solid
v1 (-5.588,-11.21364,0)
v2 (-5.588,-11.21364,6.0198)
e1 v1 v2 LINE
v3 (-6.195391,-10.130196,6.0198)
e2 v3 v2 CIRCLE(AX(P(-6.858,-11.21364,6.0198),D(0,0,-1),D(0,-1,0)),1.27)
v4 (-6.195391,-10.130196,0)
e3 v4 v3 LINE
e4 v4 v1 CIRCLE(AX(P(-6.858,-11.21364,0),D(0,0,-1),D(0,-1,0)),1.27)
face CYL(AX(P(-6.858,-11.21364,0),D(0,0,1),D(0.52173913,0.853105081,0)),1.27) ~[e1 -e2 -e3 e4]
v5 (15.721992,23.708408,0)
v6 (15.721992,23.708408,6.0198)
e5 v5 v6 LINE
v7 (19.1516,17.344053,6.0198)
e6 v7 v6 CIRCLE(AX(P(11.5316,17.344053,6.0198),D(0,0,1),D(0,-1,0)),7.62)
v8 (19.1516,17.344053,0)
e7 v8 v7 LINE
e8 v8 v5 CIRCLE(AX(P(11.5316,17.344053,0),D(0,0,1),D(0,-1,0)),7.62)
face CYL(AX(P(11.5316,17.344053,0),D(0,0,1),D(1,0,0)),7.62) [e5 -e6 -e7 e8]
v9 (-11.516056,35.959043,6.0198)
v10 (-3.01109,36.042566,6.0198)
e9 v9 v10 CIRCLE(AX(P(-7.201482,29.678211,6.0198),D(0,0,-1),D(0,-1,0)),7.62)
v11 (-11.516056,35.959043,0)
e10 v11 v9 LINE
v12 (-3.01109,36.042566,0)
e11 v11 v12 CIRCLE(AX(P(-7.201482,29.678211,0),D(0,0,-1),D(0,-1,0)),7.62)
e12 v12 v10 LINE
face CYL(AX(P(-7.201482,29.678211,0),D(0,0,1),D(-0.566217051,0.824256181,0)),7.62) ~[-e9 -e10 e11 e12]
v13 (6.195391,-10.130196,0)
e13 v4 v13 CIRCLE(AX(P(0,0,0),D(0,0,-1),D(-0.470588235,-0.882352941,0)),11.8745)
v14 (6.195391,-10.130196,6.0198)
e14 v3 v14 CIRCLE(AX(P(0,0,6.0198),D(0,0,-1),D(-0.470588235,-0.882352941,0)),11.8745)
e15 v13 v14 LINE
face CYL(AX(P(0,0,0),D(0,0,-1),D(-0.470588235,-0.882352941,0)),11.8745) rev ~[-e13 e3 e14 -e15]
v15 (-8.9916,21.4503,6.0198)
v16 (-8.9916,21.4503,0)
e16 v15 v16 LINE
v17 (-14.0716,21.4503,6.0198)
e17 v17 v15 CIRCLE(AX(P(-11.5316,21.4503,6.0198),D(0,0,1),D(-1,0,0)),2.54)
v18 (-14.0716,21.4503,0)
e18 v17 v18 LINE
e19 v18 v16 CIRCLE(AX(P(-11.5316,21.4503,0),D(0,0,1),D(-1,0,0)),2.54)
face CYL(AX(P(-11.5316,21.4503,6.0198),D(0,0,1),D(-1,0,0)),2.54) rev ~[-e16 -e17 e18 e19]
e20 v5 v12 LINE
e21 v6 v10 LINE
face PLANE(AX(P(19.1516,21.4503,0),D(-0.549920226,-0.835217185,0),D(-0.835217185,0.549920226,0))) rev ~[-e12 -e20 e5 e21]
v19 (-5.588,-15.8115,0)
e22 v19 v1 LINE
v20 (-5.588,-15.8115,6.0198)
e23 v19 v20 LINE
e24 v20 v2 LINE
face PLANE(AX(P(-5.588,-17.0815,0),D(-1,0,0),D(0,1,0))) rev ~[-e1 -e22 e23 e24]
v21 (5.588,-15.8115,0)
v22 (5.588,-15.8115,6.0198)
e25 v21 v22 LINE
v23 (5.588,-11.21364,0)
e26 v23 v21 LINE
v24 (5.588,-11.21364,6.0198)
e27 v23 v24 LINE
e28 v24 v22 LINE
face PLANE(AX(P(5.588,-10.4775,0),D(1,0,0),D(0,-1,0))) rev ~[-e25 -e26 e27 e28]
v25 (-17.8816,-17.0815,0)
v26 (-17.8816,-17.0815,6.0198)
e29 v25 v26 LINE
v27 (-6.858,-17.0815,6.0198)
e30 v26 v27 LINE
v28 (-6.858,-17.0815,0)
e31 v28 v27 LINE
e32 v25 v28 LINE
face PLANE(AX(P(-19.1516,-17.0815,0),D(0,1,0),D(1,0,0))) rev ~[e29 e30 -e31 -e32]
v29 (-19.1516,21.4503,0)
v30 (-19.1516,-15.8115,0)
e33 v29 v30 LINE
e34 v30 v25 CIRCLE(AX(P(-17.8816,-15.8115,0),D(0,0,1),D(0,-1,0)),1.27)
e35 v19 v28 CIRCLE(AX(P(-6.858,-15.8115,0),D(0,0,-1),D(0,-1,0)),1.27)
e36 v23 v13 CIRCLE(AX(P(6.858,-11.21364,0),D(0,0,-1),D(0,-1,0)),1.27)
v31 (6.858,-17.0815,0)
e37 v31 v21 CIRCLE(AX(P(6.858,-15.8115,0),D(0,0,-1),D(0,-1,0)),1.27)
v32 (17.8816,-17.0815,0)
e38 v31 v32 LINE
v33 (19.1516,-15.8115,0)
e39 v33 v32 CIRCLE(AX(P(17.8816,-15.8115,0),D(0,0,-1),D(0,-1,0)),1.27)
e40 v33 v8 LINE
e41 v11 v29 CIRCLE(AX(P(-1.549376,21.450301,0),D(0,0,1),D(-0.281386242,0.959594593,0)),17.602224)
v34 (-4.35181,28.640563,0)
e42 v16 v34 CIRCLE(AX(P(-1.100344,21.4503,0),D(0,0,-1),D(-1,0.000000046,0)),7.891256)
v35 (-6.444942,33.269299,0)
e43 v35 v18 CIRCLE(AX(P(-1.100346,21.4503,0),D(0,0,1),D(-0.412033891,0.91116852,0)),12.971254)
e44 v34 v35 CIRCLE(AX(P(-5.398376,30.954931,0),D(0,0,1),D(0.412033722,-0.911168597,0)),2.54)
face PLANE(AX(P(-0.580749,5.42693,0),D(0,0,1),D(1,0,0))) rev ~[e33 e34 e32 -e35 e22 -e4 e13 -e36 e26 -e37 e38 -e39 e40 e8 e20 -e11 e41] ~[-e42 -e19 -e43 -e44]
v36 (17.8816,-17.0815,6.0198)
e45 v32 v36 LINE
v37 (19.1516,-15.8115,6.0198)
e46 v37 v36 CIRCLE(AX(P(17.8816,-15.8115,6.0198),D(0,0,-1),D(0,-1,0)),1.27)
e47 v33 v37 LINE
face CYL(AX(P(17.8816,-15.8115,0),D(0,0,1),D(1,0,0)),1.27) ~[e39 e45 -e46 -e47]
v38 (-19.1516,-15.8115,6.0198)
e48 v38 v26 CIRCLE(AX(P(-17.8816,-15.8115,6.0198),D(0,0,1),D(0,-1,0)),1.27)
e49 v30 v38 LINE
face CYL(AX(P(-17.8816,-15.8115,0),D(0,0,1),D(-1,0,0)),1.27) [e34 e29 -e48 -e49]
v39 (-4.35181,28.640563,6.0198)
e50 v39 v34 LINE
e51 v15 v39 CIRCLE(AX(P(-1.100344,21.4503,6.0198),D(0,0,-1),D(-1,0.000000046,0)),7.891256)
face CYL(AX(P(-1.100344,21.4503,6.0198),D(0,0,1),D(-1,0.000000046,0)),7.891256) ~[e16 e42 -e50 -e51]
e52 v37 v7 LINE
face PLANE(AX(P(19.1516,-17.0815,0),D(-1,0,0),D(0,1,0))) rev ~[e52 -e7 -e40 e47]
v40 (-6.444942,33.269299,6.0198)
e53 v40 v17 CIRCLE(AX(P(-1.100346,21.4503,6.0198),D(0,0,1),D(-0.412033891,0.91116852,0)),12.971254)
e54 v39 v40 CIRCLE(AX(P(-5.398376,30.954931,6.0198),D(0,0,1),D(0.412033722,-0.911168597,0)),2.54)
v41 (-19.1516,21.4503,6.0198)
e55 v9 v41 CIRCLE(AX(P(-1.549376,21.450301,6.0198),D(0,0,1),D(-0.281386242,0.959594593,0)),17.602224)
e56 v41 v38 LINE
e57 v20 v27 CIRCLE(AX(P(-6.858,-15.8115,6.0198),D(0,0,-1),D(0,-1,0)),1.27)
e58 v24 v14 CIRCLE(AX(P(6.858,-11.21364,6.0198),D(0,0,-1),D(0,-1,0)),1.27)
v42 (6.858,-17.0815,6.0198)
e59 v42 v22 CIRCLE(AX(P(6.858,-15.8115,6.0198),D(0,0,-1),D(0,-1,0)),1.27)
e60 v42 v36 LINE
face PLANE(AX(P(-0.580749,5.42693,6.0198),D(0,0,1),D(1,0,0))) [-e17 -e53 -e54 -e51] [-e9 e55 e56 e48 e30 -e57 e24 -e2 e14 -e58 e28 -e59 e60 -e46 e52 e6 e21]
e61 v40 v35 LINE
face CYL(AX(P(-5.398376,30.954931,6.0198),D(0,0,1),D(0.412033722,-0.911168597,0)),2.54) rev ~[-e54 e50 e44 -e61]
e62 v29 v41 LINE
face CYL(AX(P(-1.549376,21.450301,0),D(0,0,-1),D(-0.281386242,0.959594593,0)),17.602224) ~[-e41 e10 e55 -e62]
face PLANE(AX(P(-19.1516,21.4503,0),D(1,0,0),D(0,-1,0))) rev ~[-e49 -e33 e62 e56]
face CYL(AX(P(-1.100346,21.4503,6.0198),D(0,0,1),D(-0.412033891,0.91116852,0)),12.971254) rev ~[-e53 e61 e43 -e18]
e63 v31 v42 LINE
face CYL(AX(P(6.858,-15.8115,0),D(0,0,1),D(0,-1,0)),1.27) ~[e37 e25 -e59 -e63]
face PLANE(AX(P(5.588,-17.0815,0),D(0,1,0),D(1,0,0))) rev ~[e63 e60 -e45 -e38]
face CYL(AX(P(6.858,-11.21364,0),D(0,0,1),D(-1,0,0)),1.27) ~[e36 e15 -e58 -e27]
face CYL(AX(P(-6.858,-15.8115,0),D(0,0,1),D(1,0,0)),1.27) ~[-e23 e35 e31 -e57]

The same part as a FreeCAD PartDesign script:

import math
import FreeCAD as App
import Part
import Sketcher
from FreeCAD import Vector
Q = App.Units.Quantity


def edges_at(feature, points):
    """Names of the edges that pass closest to the given points."""
    edges = feature.Shape.Edges
    near = lambda p: min(range(len(edges)), key=lambda i: edges[i].distToShape(Part.Vertex(*p))[0])
    return sorted({f"Edge{near(p) + 1}" for p in points})

doc = App.newDocument("Part")
body = doc.addObject("PartDesign::Body", "Body")

sketch1 = body.newObject("Sketcher::SketchObject", "Sketch")
sketch1.AttachmentSupport = (doc.getObject("XY_Plane"), [""])
sketch1.MapMode = "FlatFace"
sketch1.addGeometry([
    Part.ArcOfCircle(Part.Circle(Vector(0, 0, 0), Vector(0, 0, 1), 12), math.radians(-62), math.radians(242)),
    Part.LineSegment(Vector(6, -10, 0), Vector(6, -17, 0)),
    Part.LineSegment(Vector(6, -17, 0), Vector(19, -17, 0)),
    Part.LineSegment(Vector(19, -17, 0), Vector(19, 21, 0)),
    Part.LineSegment(Vector(19, 21, 0), Vector(-7, 38, 0)),
    Part.ArcOfCircle(Part.Circle(Vector(-2, 21, 0), Vector(0, 0, 1), 18), math.radians(106), math.radians(180)),
    Part.LineSegment(Vector(-19, 21, 0), Vector(-19, -17, 0)),
    Part.LineSegment(Vector(-19, -17, 0), Vector(-6, -17, 0)),
    Part.LineSegment(Vector(-6, -17, 0), Vector(-6, -10, 0)),
], False)
sketch1.addConstraint([
    Sketcher.Constraint("Coincident", 0, 1, 1, 1),
    Sketcher.Constraint("Coincident", 1, 2, 2, 1),
    Sketcher.Constraint("Coincident", 2, 2, 3, 1),
    Sketcher.Constraint("Coincident", 3, 2, 4, 1),
    Sketcher.Constraint("Coincident", 4, 2, 5, 1),
    Sketcher.Constraint("Tangent", 5, 2, 6, 1),
    Sketcher.Constraint("Coincident", 6, 2, 7, 1),
    Sketcher.Constraint("Coincident", 7, 2, 8, 1),
    Sketcher.Constraint("Coincident", 8, 2, 0, 2),
    Sketcher.Constraint("Vertical", 1),
    Sketcher.Constraint("Horizontal", 2),
    Sketcher.Constraint("Vertical", 3),
    Sketcher.Constraint("Vertical", 6),
    Sketcher.Constraint("Horizontal", 7),
    Sketcher.Constraint("Vertical", 8),
    Sketcher.Constraint("Coincident", 0, 3, -1, 1),
    Sketcher.Constraint("Symmetric", 3, 2, 5, 2, -2),
    Sketcher.Constraint("Symmetric", 1, 2, 7, 2, -2),
    Sketcher.Constraint("DistanceY", 1, 2, 1, 1, Q("0.26 in")),
    Sketcher.Constraint("Radius", 0, Q("0.4675 in")),
    Sketcher.Constraint("DistanceX", 2, 1, 2, 2, Q("0.534 in")),
    Sketcher.Constraint("DistanceY", 3, 1, 3, 2, Q("1.517 in")),
    Sketcher.Constraint("DistanceX", -1, 1, 0, 1, Q("0.22 in")),
    Sketcher.Constraint("DistanceX", 4, 2, 3, 2, Q("1.01 in")),
    Sketcher.Constraint("DistanceY", 5, 3, 4, 2, Q("0.6649999 in")),
])
pad1 = body.newObject("PartDesign::Pad", "Pad")
pad1.Profile = sketch1
pad1.Length = Q("0.237 in")

sketch2 = body.newObject("Sketcher::SketchObject", "Sketch001")
sketch2.AttachmentSupport = (doc.getObject("XY_Plane"), [""])
sketch2.MapMode = "FlatFace"
sketch2.AttachmentOffset = App.Placement(Vector(0, 0, 0.237 * 25.4), App.Rotation())
sketch2.addGeometry([
    Part.ArcOfCircle(Part.Circle(Vector(-1.1, 21.5, 0), Vector(0, 0, 1), 13), math.radians(114), math.radians(180)),
    Part.ArcOfCircle(Part.Circle(Vector(-11.5, 21.5, 0), Vector(0, 0, 1), 2.5), math.radians(180), math.radians(360)),
    Part.ArcOfCircle(Part.Circle(Vector(-1.1, 21.5, 0), Vector(0, 0, 1), 7.9), math.radians(114), math.radians(180)),
    Part.ArcOfCircle(Part.Circle(Vector(-5.4, 31, 0), Vector(0, 0, 1), 2.5), math.radians(-66), math.radians(114)),
], False)
sketch2.addConstraint([
    Sketcher.Constraint("Tangent", 0, 2, 1, 1),
    Sketcher.Constraint("Tangent", 1, 2, 2, 2),
    Sketcher.Constraint("Tangent", 2, 1, 3, 1),
    Sketcher.Constraint("Tangent", 3, 2, 0, 1),
    Sketcher.Constraint("Coincident", 2, 3, 0, 3),
    Sketcher.Constraint("Horizontal", 0, 3, 1, 3),
    Sketcher.Constraint("Radius", 1, Q("0.1 in")),
    Sketcher.Constraint("DistanceX", 1, 3, -1, 1, Q("0.454 in")),
    Sketcher.Constraint("DistanceY", -1, 1, 0, 3, Q("0.8445 in")),
    Sketcher.Constraint("Radius", 0, 12.971254),
    Sketcher.Constraint("DistanceY", -1, 1, 3, 2, 33.269299),
])
pocket1 = body.newObject("PartDesign::Pocket", "Pocket")
pocket1.Profile = sketch2
pocket1.Type = "ThroughAll"
doc.recompute()

fillet = body.newObject("PartDesign::Fillet", "Fillet")
fillet.Base = (pocket1, edges_at(pocket1, [(-6.502, 38.341, 3.01), (19.152, 21.45, 3.01)]))
fillet.Radius = Q("0.3 in")
doc.recompute()

fillet2 = body.newObject("PartDesign::Fillet", "Fillet001")
fillet2.Base = (fillet, edges_at(fillet, [
    (-19.152, -17.081, 3.01),
    (-5.588, -17.081, 3.01),
    (5.588, -17.081, 3.01),
    (19.152, -17.081, 3.01),
    (5.588, -10.477, 3.01),
    (-5.588, -10.477, 3.01),
]))
fillet2.Radius = Q("0.05 in")

doc.recompute()
